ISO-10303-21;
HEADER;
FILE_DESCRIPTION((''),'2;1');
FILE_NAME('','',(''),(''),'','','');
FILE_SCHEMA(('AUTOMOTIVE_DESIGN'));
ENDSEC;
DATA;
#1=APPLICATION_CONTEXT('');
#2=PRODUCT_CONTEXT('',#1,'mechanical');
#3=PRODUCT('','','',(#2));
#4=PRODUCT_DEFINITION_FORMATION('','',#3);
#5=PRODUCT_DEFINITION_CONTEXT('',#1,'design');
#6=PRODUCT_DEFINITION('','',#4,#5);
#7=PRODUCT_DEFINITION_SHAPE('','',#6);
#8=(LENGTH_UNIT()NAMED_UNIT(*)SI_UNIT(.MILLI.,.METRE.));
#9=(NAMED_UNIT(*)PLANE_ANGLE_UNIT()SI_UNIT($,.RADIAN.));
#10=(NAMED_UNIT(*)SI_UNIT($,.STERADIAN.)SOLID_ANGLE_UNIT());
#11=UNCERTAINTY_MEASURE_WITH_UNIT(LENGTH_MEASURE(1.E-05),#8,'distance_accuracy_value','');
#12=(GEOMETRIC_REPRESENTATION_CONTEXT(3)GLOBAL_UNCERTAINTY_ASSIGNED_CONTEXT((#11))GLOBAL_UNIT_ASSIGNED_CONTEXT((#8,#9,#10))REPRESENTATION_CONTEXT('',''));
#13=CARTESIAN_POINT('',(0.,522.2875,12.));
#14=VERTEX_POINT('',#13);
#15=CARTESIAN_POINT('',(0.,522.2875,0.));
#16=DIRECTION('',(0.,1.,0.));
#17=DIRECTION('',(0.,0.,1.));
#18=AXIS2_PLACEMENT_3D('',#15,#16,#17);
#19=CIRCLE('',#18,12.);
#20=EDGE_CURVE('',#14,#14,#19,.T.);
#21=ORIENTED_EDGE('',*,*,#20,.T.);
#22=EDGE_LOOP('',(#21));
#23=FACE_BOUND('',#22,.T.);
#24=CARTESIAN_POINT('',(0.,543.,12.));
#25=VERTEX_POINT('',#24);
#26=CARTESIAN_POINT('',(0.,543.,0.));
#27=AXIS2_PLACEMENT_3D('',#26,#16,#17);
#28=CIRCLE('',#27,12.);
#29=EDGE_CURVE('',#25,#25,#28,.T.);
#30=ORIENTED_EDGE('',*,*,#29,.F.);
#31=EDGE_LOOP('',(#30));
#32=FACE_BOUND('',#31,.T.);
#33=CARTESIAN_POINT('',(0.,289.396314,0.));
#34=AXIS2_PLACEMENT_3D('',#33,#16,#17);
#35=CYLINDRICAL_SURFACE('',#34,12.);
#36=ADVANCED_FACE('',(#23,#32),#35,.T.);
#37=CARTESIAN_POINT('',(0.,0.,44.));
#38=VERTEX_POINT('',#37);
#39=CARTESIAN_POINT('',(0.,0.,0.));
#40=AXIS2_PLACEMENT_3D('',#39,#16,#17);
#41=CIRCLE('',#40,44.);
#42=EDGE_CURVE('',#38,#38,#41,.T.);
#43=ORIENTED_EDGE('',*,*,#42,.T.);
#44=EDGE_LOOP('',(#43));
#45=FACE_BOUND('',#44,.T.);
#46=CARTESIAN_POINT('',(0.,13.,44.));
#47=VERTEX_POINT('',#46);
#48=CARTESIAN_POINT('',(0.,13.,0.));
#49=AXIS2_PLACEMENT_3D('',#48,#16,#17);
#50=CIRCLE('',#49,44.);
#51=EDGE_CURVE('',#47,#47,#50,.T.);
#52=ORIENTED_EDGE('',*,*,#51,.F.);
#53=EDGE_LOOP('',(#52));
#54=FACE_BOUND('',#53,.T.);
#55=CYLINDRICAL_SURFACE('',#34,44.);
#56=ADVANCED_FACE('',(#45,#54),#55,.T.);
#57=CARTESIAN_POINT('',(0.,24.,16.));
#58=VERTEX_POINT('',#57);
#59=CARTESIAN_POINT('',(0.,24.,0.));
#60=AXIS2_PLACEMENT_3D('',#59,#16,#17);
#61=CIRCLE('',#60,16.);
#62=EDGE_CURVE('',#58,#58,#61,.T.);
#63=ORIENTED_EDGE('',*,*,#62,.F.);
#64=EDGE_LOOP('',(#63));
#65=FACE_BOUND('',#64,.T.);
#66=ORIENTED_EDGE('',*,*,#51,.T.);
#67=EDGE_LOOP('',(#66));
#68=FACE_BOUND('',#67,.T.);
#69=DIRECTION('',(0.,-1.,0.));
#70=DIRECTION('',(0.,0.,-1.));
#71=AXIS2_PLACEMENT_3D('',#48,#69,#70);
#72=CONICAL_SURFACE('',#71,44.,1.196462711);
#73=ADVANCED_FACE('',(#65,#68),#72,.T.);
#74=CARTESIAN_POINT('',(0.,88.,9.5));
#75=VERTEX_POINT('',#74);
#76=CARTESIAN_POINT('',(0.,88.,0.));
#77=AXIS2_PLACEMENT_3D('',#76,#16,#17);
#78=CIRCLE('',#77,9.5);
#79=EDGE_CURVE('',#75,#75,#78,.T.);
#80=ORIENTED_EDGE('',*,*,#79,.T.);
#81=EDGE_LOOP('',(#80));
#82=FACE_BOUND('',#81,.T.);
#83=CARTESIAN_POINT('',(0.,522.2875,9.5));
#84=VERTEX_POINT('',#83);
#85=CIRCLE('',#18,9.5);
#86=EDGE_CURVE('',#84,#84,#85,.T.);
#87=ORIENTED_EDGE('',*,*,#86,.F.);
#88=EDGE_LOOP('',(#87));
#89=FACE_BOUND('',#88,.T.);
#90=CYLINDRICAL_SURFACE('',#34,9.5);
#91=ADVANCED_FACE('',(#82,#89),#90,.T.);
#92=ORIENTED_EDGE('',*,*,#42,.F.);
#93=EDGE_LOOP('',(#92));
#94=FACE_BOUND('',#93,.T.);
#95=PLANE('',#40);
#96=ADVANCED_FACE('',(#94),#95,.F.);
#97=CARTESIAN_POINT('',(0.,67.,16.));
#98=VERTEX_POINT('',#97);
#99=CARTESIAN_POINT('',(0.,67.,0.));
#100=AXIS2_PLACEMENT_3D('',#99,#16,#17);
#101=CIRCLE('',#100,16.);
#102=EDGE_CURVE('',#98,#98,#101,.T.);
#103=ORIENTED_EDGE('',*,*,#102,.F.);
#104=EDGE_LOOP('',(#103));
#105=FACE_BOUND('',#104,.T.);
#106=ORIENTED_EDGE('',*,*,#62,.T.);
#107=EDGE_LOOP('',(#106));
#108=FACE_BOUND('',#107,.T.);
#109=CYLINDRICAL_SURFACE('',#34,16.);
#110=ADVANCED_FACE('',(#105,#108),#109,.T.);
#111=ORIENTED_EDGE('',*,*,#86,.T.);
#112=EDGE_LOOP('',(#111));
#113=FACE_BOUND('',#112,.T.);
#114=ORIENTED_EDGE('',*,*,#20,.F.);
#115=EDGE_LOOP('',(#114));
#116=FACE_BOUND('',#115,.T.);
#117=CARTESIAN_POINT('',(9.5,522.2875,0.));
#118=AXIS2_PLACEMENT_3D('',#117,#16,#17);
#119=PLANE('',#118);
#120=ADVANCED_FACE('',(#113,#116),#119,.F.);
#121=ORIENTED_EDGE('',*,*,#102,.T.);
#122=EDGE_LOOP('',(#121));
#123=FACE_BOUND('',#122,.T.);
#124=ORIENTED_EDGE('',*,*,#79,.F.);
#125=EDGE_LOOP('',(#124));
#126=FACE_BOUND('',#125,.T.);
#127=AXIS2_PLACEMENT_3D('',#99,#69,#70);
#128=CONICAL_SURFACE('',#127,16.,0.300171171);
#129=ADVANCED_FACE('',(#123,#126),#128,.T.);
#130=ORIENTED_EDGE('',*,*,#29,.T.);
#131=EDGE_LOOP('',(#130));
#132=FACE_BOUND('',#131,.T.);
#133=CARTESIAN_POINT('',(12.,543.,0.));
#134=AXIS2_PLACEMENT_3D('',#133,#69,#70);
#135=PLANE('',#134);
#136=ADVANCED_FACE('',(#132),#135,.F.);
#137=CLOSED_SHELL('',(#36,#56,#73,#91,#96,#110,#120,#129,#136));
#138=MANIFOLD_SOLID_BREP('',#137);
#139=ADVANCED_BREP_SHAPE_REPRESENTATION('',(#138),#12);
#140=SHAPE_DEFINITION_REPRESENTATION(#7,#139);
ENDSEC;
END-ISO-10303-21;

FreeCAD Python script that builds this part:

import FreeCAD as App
import Part
import Sketcher

V = App.Vector


def add_polygon(sketch, points):
    """Adds a closed chain of lines whose ends are joined by coincident constraints."""
    first, n = sketch.GeometryCount, len(points)
    for a, b in zip(points, points[1:] + points[:1]):
        sketch.addGeometry(Part.LineSegment(App.Vector(*a, 0), App.Vector(*b, 0)), False)
    for i in range(n):
        sketch.addConstraint(Sketcher.Constraint("Coincident", first + i, 2, first + (i + 1) % n, 1))

doc = App.newDocument("Part")
params = doc.addObject("Spreadsheet::Sheet", "Params")
for row, (alias, value) in enumerate([
    ("sketch1_width", "44 mm"),
    ("sketch1_width2", "12 mm"),
    ("sketch1_height", "13 mm"),
    ("sketch1_height2", "43 mm"),
    ("sketch1_height3", "543 mm"),
    ("revolution_angle", "360 deg"),
], start=1):
    params.set(f"A{row}", alias)
    params.set(f"B{row}", "=" + value)
    params.setAlias(f"B{row}", alias)

body = doc.addObject("PartDesign::Body", "Body")

# Sketch on XY plane
sketch1 = body.newObject("Sketcher::SketchObject", "Sketch")
sketch1.AttachmentSupport = (doc.getObject("XY_Plane"), [""])
sketch1.MapMode = "FlatFace"
add_polygon(sketch1, [(0, 0), (44, 0), (44, 13), (16, 24), (16, 67), (9.5, 88), (9.5, 522.3), (12, 522.3), (12, 543), (0, 543)])  # lines 0-9
sketch1.addConstraint([
    Sketcher.Constraint("Horizontal", 0),
    Sketcher.Constraint("Vertical", 1),
    Sketcher.Constraint("Vertical", 3),
    Sketcher.Constraint("Vertical", 5),
    Sketcher.Constraint("Horizontal", 6),
    Sketcher.Constraint("Vertical", 7),
    Sketcher.Constraint("Horizontal", 8),
    Sketcher.Constraint("Vertical", 9),
    Sketcher.Constraint("Coincident", 9, 2, -1, 1),
    Sketcher.Constraint("DistanceX", 0, 1, 0, 2, 44.0),
    Sketcher.Constraint("DistanceX", 8, 2, 8, 1, 12.0),
    Sketcher.Constraint("DistanceY", 1, 1, 1, 2, 13.0),
    Sketcher.Constraint("DistanceY", 3, 1, 3, 2, 43.0),
    Sketcher.Constraint("DistanceY", 9, 2, 9, 1, 543.0),
    Sketcher.Constraint("DistanceX", 6, 1, 6, 2, 2.5),
    Sketcher.Constraint("DistanceX", -1, 1, 2, 2, 16.0),
    Sketcher.Constraint("DistanceY", -1, 1, 2, 2, 24.0),
    Sketcher.Constraint("DistanceY", -1, 1, 4, 2, 88.0),
    Sketcher.Constraint("DistanceY", 5, 1, 5, 2, 434.2875),
])
sketch1.setExpression("Constraints[19]", "Params.sketch1_width")
sketch1.setExpression("Constraints[20]", "Params.sketch1_width2")
sketch1.setExpression("Constraints[21]", "Params.sketch1_height")
sketch1.setExpression("Constraints[22]", "Params.sketch1_height2")
sketch1.setExpression("Constraints[23]", "Params.sketch1_height3")
revolution = body.newObject("PartDesign::Revolution", "Revolution")
revolution.Profile = sketch1
revolution.ReferenceAxis = (sketch1, ["V_Axis"])
revolution.setExpression("Angle", "Params.revolution_angle")

doc.recompute()
